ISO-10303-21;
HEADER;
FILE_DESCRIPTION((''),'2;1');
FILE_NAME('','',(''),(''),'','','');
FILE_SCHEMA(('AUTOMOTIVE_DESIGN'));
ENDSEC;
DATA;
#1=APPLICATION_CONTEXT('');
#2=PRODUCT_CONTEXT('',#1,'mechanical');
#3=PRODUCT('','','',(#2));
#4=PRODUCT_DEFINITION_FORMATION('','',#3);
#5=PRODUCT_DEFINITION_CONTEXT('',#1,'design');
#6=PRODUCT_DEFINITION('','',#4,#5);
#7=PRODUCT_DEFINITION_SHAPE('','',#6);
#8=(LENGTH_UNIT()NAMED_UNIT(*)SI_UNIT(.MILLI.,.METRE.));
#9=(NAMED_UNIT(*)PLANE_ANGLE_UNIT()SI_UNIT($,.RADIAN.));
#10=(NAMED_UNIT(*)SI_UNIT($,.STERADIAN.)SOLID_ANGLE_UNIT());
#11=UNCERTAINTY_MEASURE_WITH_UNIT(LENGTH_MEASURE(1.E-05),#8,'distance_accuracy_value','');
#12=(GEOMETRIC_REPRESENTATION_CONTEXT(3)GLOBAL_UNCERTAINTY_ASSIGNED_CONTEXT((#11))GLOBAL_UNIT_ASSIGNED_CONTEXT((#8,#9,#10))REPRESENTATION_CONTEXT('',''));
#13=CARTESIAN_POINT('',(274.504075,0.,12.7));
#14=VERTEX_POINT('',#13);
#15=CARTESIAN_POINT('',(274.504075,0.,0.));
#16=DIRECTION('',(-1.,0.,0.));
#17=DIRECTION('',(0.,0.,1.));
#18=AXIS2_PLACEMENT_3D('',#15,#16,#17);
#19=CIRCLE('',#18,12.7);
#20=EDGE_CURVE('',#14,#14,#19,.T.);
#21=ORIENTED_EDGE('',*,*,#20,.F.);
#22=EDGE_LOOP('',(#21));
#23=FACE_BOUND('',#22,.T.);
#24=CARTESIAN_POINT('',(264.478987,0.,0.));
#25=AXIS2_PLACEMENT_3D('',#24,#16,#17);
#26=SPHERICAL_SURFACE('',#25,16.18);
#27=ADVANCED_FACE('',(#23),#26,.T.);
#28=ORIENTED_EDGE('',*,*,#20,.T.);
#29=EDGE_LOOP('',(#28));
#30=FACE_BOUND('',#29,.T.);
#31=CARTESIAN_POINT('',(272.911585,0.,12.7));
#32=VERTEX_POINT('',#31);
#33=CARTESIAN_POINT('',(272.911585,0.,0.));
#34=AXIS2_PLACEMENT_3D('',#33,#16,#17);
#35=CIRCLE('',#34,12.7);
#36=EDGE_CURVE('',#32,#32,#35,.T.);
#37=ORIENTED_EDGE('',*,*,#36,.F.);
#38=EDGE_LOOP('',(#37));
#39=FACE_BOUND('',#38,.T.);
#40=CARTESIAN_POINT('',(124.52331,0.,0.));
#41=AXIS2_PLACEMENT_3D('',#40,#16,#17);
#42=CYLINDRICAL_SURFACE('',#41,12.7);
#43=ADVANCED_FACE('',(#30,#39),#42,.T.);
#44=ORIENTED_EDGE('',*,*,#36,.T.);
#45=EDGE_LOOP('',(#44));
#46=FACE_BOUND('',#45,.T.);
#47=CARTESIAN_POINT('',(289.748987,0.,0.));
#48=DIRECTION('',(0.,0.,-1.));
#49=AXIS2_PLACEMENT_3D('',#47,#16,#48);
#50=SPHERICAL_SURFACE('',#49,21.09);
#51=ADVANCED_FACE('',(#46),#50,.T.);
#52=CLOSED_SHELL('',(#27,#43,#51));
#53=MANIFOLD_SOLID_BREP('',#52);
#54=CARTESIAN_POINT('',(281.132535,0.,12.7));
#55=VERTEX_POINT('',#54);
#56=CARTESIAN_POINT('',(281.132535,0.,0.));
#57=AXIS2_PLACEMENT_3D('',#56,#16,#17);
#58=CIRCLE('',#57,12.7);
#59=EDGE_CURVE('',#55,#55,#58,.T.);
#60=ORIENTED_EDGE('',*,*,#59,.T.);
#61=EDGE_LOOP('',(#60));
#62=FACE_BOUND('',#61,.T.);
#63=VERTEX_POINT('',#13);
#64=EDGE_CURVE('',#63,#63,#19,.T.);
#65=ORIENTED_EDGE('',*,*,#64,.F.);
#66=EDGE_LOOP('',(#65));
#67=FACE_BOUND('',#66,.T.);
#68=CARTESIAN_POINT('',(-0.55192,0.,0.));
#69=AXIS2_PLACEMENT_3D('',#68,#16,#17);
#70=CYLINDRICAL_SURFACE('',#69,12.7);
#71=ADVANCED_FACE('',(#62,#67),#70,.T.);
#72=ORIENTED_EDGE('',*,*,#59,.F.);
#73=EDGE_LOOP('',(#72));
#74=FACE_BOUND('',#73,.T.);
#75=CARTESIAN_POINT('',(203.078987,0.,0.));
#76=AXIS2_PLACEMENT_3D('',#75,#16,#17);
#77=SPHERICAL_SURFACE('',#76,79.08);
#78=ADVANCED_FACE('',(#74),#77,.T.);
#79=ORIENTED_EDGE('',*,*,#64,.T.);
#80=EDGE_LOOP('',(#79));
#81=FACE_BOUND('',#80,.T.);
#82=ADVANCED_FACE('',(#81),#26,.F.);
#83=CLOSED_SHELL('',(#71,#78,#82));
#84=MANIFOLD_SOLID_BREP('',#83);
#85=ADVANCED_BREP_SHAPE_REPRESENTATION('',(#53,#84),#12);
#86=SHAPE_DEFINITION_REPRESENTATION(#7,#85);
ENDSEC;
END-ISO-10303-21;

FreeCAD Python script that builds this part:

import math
import FreeCAD as App
import Part
import Sketcher
from FreeCAD import Vector

doc = App.newDocument("Part")
params = doc.addObject("Spreadsheet::Sheet", "Params")
for row, (alias, value) in enumerate([
    ("sketch1_width", "12 mm"),
    ("sketch1_radius", "21.09 mm"),
    ("sketch1_radius2", "16.18 mm"),
    ("revolution_angle", "360 deg"),
    ("sketch2_radius", "16.18 mm"),
    ("sketch2_radius2", "79.08 mm"),
    ("sketch2_width", "1.5 mm"),
    ("revolution2_angle", "360 deg"),
], start=1):
    params.set(f"A{row}", alias)
    params.set(f"B{row}", "=" + value)
    params.setAlias(f"B{row}", alias)

body = doc.addObject("PartDesign::Body", "Body")

# Sketch on XZ plane
sketch1 = body.newObject("Sketcher::SketchObject", "Sketch")
sketch1.AttachmentSupport = (doc.getObject("XZ_Plane"), [""])
sketch1.MapMode = "FlatFace"
sketch1.addGeometry(Part.ArcOfCircle(Part.Circle(Vector(289.7, 0, 0), Vector(0, 0, 1), 21.1), math.radians(180), math.radians(217)), False)
sketch1.addGeometry(Part.LineSegment(Vector(268.7, 0, 0), Vector(280.7, 0, 0)), False)
sketch1.addGeometry(Part.ArcOfCircle(Part.Circle(Vector(264.5, 0, 0), Vector(0, 0, 1), 16.2), math.radians(-52), math.radians(0)), False)
sketch1.addGeometry(Part.LineSegment(Vector(274.5, -12.7, 0), Vector(272.9, -12.7, 0)), False)
sketch1.addConstraint(Sketcher.Constraint("Coincident", 0, 1, 1, 1))
sketch1.addConstraint(Sketcher.Constraint("Coincident", 1, 2, 2, 2))
sketch1.addConstraint(Sketcher.Constraint("Coincident", 2, 1, 3, 1))
sketch1.addConstraint(Sketcher.Constraint("Coincident", 3, 2, 0, 2))
sketch1.addConstraint(Sketcher.Constraint("Horizontal", 1))
sketch1.addConstraint(Sketcher.Constraint("Horizontal", 3))
sketch1.addConstraint(Sketcher.Constraint("PointOnObject", 0, 3, -1))
sketch1.addConstraint(Sketcher.Constraint("PointOnObject", 2, 3, -1))
sketch1.addConstraint(Sketcher.Constraint("PointOnObject", 0, 1, -1))
sketch1.addConstraint(Sketcher.Constraint("DistanceX", 1, 1, 1, 2, 12.0))
sketch1.addConstraint(Sketcher.Constraint("Radius", 0, 21.09))
sketch1.addConstraint(Sketcher.Constraint("Radius", 2, 16.18))
sketch1.addConstraint(Sketcher.Constraint("DistanceY", 2, 1, -1, 1, 12.7))
sketch1.addConstraint(Sketcher.Constraint("DistanceX", -1, 1, 0, 3, 289.748987))
sketch1.setExpression("Constraints[9]", "Params.sketch1_width")
sketch1.setExpression("Constraints[10]", "Params.sketch1_radius")
sketch1.setExpression("Constraints[11]", "Params.sketch1_radius2")
revolution = body.newObject("PartDesign::Revolution", "Revolution")
revolution.Profile = sketch1
revolution.ReferenceAxis = (sketch1, ["H_Axis"])
revolution.setExpression("Angle", "Params.revolution_angle")
body2 = doc.addObject("PartDesign::Body", "Body001")

# Sketch on XZ plane
sketch2 = body2.newObject("Sketcher::SketchObject", "Sketch001")
sketch2.AttachmentSupport = (doc.getObject("XZ_Plane001"), [""])
sketch2.MapMode = "FlatFace"
sketch2.addGeometry(Part.LineSegment(Vector(281.1, -12.7, 0), Vector(274.5, -12.7, 0)), False)
sketch2.addGeometry(Part.ArcOfCircle(Part.Circle(Vector(264.5, 0, 0), Vector(0, 0, 1), 16.2), math.radians(-52), math.radians(0)), False)
sketch2.addGeometry(Part.LineSegment(Vector(280.7, 0, 0), Vector(282.2, 0, 0)), False)
sketch2.addGeometry(Part.ArcOfCircle(Part.Circle(Vector(203.1, 0, 0), Vector(0, 0, 1), 79.1), math.radians(-9.24), math.radians(0)), False)
sketch2.addConstraint(Sketcher.Constraint("Coincident", 0, 2, 1, 1))
sketch2.addConstraint(Sketcher.Constraint("Coincident", 1, 2, 2, 1))
sketch2.addConstraint(Sketcher.Constraint("Coincident", 2, 2, 3, 2))
sketch2.addConstraint(Sketcher.Constraint("Coincident", 3, 1, 0, 1))
sketch2.addConstraint(Sketcher.Constraint("Horizontal", 0))
sketch2.addConstraint(Sketcher.Constraint("Horizontal", 2))
sketch2.addConstraint(Sketcher.Constraint("PointOnObject", 1, 3, -1))
sketch2.addConstraint(Sketcher.Constraint("PointOnObject", 3, 3, -1))
sketch2.addConstraint(Sketcher.Constraint("PointOnObject", 1, 2, -1))
sketch2.addConstraint(Sketcher.Constraint("Radius", 1, 16.18))
sketch2.addConstraint(Sketcher.Constraint("Radius", 3, 79.08))
sketch2.addConstraint(Sketcher.Constraint("DistanceX", 2, 1, 2, 2, 1.5))
sketch2.addConstraint(Sketcher.Constraint("DistanceY", 0, 2, -1, 1, 12.7))
sketch2.addConstraint(Sketcher.Constraint("DistanceX", -1, 1, 1, 3, 264.478987))
sketch2.setExpression("Constraints[9]", "Params.sketch2_radius")
sketch2.setExpression("Constraints[10]", "Params.sketch2_radius2")
sketch2.setExpression("Constraints[11]", "Params.sketch2_width")
revolution2 = body2.newObject("PartDesign::Revolution", "Revolution001")
revolution2.Profile = sketch2
revolution2.ReferenceAxis = (sketch2, ["H_Axis"])
revolution2.setExpression("Angle", "Params.revolution2_angle")

doc.recompute()
